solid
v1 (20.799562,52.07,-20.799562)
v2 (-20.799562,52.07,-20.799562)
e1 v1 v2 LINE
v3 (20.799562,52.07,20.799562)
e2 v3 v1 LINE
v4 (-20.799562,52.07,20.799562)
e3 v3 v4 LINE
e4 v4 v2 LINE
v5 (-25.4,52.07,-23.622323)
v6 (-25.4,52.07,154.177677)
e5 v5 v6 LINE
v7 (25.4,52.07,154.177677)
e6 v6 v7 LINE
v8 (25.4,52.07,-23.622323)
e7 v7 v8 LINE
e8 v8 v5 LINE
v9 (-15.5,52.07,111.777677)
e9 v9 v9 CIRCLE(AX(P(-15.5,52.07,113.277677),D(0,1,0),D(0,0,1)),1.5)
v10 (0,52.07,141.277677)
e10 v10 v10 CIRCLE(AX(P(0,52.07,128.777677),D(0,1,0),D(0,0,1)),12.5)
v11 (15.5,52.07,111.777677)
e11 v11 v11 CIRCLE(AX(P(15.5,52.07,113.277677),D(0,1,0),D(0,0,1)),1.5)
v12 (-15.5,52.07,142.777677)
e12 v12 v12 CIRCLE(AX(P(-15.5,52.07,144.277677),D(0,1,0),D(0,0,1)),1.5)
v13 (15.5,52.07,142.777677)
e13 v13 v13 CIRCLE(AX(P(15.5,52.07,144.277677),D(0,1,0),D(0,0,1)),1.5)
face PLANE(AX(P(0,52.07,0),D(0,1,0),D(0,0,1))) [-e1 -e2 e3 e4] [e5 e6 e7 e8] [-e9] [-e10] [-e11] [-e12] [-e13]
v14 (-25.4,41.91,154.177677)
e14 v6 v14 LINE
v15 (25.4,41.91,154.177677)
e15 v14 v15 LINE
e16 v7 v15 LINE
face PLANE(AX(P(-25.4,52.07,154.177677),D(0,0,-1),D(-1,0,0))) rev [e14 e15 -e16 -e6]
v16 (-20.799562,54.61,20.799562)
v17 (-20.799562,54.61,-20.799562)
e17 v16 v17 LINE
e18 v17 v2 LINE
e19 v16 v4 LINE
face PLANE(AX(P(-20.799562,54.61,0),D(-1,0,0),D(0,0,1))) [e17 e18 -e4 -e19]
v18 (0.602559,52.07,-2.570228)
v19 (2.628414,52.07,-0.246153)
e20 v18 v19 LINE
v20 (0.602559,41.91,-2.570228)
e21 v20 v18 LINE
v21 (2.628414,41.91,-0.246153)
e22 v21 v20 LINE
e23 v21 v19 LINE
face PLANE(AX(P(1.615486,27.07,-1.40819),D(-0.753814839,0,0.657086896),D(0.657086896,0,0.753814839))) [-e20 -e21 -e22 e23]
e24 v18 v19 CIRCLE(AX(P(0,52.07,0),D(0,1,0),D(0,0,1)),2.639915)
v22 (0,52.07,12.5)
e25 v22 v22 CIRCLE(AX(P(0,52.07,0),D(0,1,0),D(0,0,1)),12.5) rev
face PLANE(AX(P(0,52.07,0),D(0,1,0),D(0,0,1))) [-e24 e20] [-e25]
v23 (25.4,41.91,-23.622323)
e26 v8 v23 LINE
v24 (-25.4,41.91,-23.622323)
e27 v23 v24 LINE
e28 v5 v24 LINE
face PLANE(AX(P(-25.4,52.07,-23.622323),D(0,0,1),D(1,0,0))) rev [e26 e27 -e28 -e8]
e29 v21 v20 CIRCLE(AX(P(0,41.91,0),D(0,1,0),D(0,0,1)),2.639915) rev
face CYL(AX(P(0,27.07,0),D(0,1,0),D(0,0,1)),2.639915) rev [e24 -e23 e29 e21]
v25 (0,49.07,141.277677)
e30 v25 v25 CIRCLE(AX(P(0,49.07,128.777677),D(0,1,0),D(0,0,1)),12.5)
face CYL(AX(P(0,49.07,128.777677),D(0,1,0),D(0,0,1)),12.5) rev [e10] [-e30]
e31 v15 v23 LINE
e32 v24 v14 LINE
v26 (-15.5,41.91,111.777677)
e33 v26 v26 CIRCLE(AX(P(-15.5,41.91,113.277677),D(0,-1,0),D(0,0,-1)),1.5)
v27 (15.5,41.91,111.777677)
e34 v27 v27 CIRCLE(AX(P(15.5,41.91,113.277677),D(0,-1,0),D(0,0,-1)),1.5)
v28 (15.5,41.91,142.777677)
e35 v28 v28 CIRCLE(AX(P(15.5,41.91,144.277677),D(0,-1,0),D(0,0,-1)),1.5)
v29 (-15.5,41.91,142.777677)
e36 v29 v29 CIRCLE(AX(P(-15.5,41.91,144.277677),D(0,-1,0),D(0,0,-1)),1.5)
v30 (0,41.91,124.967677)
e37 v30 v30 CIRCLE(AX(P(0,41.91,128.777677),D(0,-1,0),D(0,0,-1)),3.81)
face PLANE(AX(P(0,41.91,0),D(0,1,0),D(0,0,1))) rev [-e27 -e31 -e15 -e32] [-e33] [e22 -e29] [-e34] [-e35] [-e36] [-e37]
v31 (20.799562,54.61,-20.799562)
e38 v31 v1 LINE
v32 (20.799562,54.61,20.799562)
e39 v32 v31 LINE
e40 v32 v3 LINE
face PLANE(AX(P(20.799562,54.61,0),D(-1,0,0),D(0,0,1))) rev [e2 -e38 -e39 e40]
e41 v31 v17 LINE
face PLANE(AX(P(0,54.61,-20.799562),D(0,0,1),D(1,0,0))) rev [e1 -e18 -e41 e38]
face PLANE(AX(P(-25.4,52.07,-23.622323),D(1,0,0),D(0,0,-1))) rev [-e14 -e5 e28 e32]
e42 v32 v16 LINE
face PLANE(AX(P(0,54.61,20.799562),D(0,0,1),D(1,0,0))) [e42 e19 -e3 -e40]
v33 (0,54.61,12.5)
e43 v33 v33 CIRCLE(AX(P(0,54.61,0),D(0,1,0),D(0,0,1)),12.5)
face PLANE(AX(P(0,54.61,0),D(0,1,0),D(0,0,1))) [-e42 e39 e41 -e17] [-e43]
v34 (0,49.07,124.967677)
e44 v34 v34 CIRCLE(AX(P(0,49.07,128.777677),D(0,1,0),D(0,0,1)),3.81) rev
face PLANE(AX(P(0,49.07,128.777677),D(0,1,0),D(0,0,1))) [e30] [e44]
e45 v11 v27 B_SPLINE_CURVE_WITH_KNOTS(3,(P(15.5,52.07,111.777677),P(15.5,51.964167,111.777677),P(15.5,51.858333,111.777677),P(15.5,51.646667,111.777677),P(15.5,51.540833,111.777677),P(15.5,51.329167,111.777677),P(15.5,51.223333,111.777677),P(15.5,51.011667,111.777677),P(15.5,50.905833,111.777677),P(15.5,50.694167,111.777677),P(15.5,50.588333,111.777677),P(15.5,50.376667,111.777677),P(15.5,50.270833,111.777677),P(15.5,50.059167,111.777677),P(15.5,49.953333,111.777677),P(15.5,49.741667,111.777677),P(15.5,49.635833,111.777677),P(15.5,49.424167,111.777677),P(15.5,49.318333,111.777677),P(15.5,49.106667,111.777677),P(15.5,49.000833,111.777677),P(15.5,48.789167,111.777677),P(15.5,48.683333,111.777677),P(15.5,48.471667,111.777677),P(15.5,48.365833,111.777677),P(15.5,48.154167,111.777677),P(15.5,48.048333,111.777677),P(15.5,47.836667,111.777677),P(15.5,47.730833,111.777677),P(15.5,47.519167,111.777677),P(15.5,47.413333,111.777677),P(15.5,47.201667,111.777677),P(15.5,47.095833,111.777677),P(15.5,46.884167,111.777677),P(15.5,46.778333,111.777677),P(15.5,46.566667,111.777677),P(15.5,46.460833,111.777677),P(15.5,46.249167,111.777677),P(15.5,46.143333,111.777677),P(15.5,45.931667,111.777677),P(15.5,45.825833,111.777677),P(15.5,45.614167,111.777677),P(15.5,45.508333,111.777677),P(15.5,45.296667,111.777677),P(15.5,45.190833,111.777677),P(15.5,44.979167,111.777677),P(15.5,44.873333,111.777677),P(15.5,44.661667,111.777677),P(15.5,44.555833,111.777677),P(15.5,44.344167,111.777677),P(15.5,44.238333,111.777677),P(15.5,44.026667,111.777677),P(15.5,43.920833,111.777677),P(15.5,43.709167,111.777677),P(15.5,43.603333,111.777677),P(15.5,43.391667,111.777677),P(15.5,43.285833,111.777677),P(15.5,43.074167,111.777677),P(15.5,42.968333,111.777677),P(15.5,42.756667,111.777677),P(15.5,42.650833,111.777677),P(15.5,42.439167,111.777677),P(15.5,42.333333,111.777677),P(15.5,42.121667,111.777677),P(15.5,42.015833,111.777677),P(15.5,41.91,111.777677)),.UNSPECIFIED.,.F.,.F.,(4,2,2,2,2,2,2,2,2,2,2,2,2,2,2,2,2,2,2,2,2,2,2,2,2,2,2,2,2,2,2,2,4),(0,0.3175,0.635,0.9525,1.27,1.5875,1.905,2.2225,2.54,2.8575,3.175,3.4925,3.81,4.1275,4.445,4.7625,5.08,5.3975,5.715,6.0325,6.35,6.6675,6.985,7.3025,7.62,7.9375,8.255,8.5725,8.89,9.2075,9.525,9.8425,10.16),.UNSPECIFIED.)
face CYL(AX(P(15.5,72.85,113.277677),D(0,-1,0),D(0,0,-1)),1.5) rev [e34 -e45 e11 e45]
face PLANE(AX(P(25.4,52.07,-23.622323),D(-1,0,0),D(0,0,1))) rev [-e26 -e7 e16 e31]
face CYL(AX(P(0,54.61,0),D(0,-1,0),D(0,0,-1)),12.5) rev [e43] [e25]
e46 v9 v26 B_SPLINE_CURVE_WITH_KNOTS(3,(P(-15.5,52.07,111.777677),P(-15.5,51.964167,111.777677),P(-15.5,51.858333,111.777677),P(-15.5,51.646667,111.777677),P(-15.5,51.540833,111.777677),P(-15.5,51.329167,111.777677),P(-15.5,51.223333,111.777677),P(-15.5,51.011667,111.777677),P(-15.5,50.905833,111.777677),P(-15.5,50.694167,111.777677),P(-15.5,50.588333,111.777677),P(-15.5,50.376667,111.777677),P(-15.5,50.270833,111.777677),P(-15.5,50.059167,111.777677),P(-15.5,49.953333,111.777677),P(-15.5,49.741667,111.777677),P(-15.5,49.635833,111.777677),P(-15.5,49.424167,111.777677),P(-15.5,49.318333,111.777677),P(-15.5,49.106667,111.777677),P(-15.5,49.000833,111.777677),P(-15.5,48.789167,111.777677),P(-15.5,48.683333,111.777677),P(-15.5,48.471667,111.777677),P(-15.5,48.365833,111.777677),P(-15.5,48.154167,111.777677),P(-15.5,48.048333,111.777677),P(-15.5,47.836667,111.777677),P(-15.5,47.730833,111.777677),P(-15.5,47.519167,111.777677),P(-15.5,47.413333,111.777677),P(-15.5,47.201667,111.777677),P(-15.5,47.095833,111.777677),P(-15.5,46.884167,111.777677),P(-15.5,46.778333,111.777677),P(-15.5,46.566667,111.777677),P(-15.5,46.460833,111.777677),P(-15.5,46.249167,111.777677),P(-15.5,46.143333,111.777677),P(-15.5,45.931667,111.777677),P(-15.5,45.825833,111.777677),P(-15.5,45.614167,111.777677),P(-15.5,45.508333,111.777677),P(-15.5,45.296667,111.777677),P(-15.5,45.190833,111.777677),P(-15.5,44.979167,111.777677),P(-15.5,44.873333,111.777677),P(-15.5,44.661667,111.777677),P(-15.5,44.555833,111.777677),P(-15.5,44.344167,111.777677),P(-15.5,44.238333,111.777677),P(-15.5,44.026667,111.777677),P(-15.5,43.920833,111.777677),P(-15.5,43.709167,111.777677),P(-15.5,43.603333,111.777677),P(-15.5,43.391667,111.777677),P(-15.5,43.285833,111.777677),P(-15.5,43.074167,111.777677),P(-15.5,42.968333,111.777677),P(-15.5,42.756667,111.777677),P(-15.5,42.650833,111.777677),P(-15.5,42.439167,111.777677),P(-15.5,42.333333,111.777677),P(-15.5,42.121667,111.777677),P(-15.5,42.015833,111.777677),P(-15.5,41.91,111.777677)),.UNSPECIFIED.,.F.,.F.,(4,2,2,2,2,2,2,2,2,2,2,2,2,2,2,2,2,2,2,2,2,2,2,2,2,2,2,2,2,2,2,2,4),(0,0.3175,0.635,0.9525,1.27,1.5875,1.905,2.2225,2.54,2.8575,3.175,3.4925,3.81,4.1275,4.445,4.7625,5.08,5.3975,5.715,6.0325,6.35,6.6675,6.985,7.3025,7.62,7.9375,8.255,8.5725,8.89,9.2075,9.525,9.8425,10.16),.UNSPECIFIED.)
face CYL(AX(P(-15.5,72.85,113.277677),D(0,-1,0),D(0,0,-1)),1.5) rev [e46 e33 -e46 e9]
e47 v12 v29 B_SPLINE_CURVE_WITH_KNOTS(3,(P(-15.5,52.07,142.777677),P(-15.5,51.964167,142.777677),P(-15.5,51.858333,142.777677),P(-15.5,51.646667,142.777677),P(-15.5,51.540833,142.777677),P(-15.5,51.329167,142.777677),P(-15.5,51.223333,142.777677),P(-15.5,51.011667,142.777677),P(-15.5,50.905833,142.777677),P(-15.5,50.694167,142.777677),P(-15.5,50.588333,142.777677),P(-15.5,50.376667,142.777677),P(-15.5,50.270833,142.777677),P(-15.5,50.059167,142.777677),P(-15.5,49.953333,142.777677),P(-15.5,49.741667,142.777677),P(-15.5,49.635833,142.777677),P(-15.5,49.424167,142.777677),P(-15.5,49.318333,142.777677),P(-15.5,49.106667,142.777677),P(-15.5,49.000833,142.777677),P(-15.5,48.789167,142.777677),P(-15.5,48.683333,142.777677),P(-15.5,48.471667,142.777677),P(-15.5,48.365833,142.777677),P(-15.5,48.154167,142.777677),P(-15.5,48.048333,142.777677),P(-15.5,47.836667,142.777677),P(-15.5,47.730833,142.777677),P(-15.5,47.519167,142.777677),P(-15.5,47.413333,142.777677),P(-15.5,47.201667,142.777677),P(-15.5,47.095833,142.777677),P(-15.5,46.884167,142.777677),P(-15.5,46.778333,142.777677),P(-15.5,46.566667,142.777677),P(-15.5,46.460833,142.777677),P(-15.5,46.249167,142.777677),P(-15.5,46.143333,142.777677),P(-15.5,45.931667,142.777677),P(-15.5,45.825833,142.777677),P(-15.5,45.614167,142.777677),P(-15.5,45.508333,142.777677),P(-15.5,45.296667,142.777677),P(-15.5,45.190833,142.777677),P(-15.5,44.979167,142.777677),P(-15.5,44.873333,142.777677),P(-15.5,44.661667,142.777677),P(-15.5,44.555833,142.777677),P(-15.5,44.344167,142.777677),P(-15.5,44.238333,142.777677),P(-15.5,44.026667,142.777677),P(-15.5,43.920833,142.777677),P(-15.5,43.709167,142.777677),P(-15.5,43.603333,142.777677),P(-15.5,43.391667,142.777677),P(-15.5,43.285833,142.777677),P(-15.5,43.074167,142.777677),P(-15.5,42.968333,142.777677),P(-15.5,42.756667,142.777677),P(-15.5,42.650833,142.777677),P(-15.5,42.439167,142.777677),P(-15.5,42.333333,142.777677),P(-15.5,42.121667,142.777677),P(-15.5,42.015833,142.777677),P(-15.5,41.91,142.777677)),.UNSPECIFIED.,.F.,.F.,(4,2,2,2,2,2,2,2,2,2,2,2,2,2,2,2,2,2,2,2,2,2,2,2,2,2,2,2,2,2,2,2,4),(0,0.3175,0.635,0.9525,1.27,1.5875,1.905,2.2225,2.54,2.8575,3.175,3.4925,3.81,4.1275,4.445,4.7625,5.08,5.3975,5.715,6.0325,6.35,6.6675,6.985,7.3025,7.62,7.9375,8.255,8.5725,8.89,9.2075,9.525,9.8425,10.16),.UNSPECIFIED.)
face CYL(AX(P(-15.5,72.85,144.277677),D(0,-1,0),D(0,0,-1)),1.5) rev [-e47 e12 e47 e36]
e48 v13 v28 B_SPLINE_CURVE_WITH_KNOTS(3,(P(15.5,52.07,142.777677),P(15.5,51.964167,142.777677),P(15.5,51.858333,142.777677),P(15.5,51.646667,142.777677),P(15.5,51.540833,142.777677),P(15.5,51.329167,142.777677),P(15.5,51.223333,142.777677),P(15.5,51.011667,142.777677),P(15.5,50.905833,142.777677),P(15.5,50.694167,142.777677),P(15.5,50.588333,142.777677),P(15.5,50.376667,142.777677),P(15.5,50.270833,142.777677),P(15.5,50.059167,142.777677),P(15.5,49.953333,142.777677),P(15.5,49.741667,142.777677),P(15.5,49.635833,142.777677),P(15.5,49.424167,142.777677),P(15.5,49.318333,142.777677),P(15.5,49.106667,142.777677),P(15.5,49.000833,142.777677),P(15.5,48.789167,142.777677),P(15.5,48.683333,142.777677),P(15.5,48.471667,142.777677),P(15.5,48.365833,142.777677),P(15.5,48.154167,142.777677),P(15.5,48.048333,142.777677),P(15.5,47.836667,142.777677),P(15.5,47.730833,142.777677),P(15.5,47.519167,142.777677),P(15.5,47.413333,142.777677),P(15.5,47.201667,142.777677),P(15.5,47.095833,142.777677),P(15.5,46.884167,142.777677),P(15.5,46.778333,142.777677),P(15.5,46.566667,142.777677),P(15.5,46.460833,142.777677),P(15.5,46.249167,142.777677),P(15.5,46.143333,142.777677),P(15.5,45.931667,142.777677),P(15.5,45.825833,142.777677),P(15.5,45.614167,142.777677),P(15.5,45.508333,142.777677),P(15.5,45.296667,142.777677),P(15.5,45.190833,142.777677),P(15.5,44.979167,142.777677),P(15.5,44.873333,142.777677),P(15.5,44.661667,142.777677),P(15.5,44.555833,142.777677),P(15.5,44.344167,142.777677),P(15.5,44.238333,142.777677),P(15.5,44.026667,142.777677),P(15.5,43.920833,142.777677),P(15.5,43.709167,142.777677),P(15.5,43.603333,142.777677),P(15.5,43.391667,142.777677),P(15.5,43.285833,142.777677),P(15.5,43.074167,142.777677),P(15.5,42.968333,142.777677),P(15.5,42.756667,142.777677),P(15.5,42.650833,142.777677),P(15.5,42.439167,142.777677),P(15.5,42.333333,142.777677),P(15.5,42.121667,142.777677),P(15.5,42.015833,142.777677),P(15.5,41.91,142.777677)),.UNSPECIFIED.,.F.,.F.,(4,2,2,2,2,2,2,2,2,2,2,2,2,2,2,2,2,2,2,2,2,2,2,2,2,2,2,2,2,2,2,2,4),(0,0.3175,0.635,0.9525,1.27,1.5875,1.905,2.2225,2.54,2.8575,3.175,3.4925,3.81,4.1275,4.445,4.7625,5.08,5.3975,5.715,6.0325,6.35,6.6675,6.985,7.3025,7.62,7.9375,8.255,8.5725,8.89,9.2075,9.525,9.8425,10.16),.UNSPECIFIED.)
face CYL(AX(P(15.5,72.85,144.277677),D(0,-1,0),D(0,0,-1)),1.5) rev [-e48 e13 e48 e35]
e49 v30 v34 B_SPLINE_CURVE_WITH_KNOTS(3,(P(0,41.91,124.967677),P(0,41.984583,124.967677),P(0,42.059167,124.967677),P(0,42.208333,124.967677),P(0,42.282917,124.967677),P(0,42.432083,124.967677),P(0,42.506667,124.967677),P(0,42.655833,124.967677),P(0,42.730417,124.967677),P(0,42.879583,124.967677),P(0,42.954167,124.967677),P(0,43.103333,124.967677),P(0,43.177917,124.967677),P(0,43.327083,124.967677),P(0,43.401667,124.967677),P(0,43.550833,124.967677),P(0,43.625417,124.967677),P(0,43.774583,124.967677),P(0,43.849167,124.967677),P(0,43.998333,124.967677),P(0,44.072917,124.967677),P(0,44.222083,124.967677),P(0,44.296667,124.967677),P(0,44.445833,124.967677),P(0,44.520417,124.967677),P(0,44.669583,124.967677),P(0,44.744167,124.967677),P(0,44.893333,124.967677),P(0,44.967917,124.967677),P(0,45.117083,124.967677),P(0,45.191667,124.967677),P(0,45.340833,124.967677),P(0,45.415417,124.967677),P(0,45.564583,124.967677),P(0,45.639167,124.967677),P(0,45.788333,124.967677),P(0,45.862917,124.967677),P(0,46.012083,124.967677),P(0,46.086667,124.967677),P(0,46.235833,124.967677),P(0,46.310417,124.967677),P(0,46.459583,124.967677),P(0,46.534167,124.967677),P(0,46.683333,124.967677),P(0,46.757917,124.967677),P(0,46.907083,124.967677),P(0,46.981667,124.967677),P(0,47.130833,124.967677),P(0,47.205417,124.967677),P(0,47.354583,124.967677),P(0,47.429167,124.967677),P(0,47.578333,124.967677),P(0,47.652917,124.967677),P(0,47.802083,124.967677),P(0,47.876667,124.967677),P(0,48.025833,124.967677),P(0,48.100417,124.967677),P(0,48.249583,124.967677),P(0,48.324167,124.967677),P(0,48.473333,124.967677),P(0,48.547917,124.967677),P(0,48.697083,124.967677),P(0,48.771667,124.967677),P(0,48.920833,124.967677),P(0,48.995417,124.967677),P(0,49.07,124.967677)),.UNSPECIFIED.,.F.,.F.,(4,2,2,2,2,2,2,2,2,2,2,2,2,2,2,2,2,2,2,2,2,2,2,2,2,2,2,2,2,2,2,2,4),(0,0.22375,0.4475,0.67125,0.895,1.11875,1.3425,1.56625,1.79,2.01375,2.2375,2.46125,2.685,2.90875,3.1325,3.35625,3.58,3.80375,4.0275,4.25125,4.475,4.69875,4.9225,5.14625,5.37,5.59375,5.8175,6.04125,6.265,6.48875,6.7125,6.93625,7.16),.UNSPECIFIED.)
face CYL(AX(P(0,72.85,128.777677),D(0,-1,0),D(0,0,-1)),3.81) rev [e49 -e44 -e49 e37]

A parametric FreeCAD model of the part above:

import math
import FreeCAD as App
import Part
import Sketcher
Q = App.Units.Quantity


def add_polygon(sketch, points):
    """Adds a closed chain of lines whose ends are joined by coincident constraints."""
    first, n = sketch.GeometryCount, len(points)
    for a, b in zip(points, points[1:] + points[:1]):
        sketch.addGeometry(Part.LineSegment(App.Vector(*a, 0), App.Vector(*b, 0)), False)
    for i in range(n):
        sketch.addConstraint(Sketcher.Constraint("Coincident", first + i, 2, first + (i + 1) % n, 1))

doc = App.newDocument("Part")
params = doc.addObject("Spreadsheet::Sheet", "Params")
for row, (alias, value) in enumerate([
    ("sketch1_diameter", "0.4 in"),
    ("pad1_length", "1.65 in"),
    ("sketch2_width", "2 in"),
    ("sketch2_height", "7 in"),
    ("pad2_length", "0.4 in"),
    ("pad3_length", "0.1 in"),
    ("pocket1_length", "25 mm"),
    ("sketch5_diameter", "0.3 in"),
    ("pocket2_length", "30.94 mm"),
    ("pocket3_length", "3 mm"),
    ("pocket4_length", "85.804 mm"),
], start=1):
    params.set(f"A{row}", alias)
    params.set(f"B{row}", "=" + value)
    params.setAlias(f"B{row}", alias)

body = doc.addObject("PartDesign::Body", "Body")

# Sketch on XZ plane
sketch1 = body.newObject("Sketcher::SketchObject", "Sketch")
sketch1.AttachmentSupport = (doc.getObject("XZ_Plane"), [""])
sketch1.MapMode = "FlatFace"
sketch1.addGeometry(Part.Circle(App.Vector(0, 0, 0), App.Vector(0, 0, 1), 5), False)
sketch1.addConstraint([
    Sketcher.Constraint("Coincident", 0, 3, -1, 1),
    Sketcher.Constraint("Diameter", 0, Q("0.4 in")),
])
sketch1.setExpression("Constraints[1]", "Params.sketch1_diameter")
pad1 = body.newObject("PartDesign::Pad", "Pad")
pad1.Profile = sketch1
pad1.setExpression("Length", "Params.pad1_length")
pad1.Reversed = True

# Sketch on XZ plane
sketch2 = body.newObject("Sketcher::SketchObject", "Sketch001")
sketch2.AttachmentSupport = (doc.getObject("XZ_Plane"), [""])
sketch2.MapMode = "FlatFace"
sketch2.AttachmentOffset = App.Placement(App.Vector(0, 0, -1.65 * 25.4), App.Rotation())
add_polygon(sketch2, [(-25, -24), (-25, 154), (25, 154), (25, -24)])  # lines 0-3
sketch2.addConstraint([
    Sketcher.Constraint("Vertical", 0),
    Sketcher.Constraint("Horizontal", 1),
    Sketcher.Constraint("Vertical", 2),
    Sketcher.Constraint("Horizontal", 3),
    Sketcher.Constraint("DistanceX", 1, 1, 1, 2, Q("2 in")),
    Sketcher.Constraint("DistanceY", 0, 1, 0, 2, Q("7 in")),
    Sketcher.Constraint("DistanceX", 0, 2, -1, 1, Q("1 in")),
    Sketcher.Constraint("DistanceY", -1, 1, 0, 2, Q("154.177677 mm")),
])
sketch2.setExpression("Constraints[8]", "Params.sketch2_width")
sketch2.setExpression("Constraints[9]", "Params.sketch2_height")
pad2 = body.newObject("PartDesign::Pad", "Pad001")
pad2.Profile = sketch2
pad2.setExpression("Length", "Params.pad2_length")
pad2.Reversed = True

# Sketch on XZ plane
sketch3 = body.newObject("Sketcher::SketchObject", "Sketch002")
sketch3.AttachmentSupport = (doc.getObject("XZ_Plane"), [""])
sketch3.MapMode = "FlatFace"
sketch3.AttachmentOffset = App.Placement(App.Vector(0, 0, -2.05 * 25.4), App.Rotation())
add_polygon(sketch3, [(-21, -21), (-21, 21), (21, 21), (21, -21)])  # lines 0-3
sketch3.addGeometry(Part.Circle(App.Vector(0, 0, 0), App.Vector(0, 0, 1), 12), False)  # 4
sketch3.addConstraint([
    Sketcher.Constraint("Vertical", 0),
    Sketcher.Constraint("Horizontal", 1),
    Sketcher.Constraint("Vertical", 2),
    Sketcher.Constraint("Horizontal", 3),
    Sketcher.Constraint("Coincident", 4, 3, -1, 1),
    Sketcher.Constraint("Symmetric", 0, 2, 2, 2, -1, 1),
    Sketcher.Constraint("Equal", 3, 0),
    Sketcher.Constraint("Diameter", 4, Q("25 mm")),
    Sketcher.Constraint("DistanceX", 1, 1, 1, 2, Q("41.599125 mm")),
])
pad3 = body.newObject("PartDesign::Pad", "Pad002")
pad3.Profile = sketch3
pad3.setExpression("Length", "Params.pad3_length")
pad3.Reversed = True

# Sketch on XZ plane
sketch4 = body.newObject("Sketcher::SketchObject", "Sketch003")
sketch4.AttachmentSupport = (doc.getObject("XZ_Plane"), [""])
sketch4.MapMode = "FlatFace"
sketch4.AttachmentOffset = App.Placement(App.Vector(0, 0, -2.05 * 25.4), App.Rotation())
sketch4.addGeometry([
    Part.LineSegment(App.Vector(2.63, -0.25, 0), App.Vector(0.6, -2.57, 0)),
    Part.ArcOfCircle(Part.Circle(App.Vector(0, 0, 0), App.Vector(0, 0, 1), 2.64), math.radians(0), math.radians(283)),
    Part.ArcOfCircle(Part.Circle(App.Vector(0, 0, 0), App.Vector(0, 0, 1), 2.64), math.radians(-5.35), math.radians(0)),
], False)
sketch4.addConstraint([
    Sketcher.Constraint("Coincident", 0, 2, 1, 2),
    Sketcher.Constraint("Tangent", 1, 1, 2, 2),
    Sketcher.Constraint("Coincident", 2, 1, 0, 1),
    Sketcher.Constraint("Coincident", 1, 3, -1, 1),
    Sketcher.Constraint("Equal", 1, 2),
    Sketcher.Constraint("PointOnObject", 1, 1, -1),
    Sketcher.Constraint("Radius", 1, Q("2.639915 mm")),
    Sketcher.Constraint("DistanceX", 2, 1, 1, 1, Q("0.011501 mm")),
    Sketcher.Constraint("DistanceX", -1, 1, 0, 2, Q("0.602559 mm")),
])
pocket1 = body.newObject("PartDesign::Pocket", "Pocket")
pocket1.Profile = sketch4
pocket1.setExpression("Length", "Params.pocket1_length")
pocket1.Reversed = True

# Sketch on XZ plane
sketch5 = body.newObject("Sketcher::SketchObject", "Sketch004")
sketch5.AttachmentSupport = (doc.getObject("XZ_Plane"), [""])
sketch5.MapMode = "FlatFace"
sketch5.AttachmentOffset = App.Placement(App.Vector(0, 0, -1.65 * 25.4), App.Rotation())
sketch5.addGeometry([
    Part.Circle(App.Vector(15.5, 144.3, 0), App.Vector(0, 0, 1), 1.5),  # 0
    Part.Circle(App.Vector(0, 128.8, 0), App.Vector(0, 0, 1), 3.8),  # 1
    Part.Circle(App.Vector(-15.5, 113.3, 0), App.Vector(0, 0, 1), 1.5),  # 2
    Part.Circle(App.Vector(15.5, 113.3, 0), App.Vector(0, 0, 1), 1.5),  # 3
    Part.Circle(App.Vector(-15.5, 144.3, 0), App.Vector(0, 0, 1), 1.5),  # 4
], False)
sketch5.addConstraint([
    Sketcher.Constraint("Equal", 0, 2),
    Sketcher.Constraint("Equal", 2, 3),
    Sketcher.Constraint("Equal", 3, 4),
    Sketcher.Constraint("Symmetric", 2, 3, 3, 3, -2),
    Sketcher.Constraint("Symmetric", 0, 3, 4, 3, -2),
    Sketcher.Constraint("PointOnObject", 1, 3, -2),
    Sketcher.Constraint("Vertical", 0, 3, 3, 3),
    Sketcher.Constraint("Diameter", 1, Q("0.3 in")),
    Sketcher.Constraint("Diameter", 0, Q("3 mm")),
    Sketcher.Constraint("DistanceX", -1, 1, 0, 3, Q("15.5 mm")),
    Sketcher.Constraint("DistanceY", 1, 3, 0, 3, Q("15.5 mm")),
    Sketcher.Constraint("DistanceY", 2, 3, 1, 3, Q("15.5 mm")),
    Sketcher.Constraint("DistanceY", -1, 1, 0, 3, Q("144.277677 mm")),
])
sketch5.setExpression("Constraints[7]", "Params.sketch5_diameter")
pocket2 = body.newObject("PartDesign::Pocket", "Pocket001")
pocket2.Profile = sketch5
pocket2.setExpression("Length", "Params.pocket2_length")

# Sketch on XZ plane
sketch6 = body.newObject("Sketcher::SketchObject", "Sketch005")
sketch6.AttachmentSupport = (doc.getObject("XZ_Plane"), [""])
sketch6.MapMode = "FlatFace"
sketch6.AttachmentOffset = App.Placement(App.Vector(0, 0, -2.05 * 25.4), App.Rotation())
sketch6.addGeometry(Part.Circle(App.Vector(0, 129, 0), App.Vector(0, 0, 1), 12), False)
sketch6.addConstraint([
    Sketcher.Constraint("PointOnObject", 0, 3, -2),
    Sketcher.Constraint("Diameter", 0, Q("25 mm")),
    Sketcher.Constraint("DistanceY", -1, 1, 0, 3, Q("128.777677 mm")),
])
pocket3 = body.newObject("PartDesign::Pocket", "Pocket002")
pocket3.Profile = sketch6
pocket3.setExpression("Length", "Params.pocket3_length")
pocket3.Reversed = True

# Sketch on YZ plane
sketch7 = body.newObject("Sketcher::SketchObject", "Sketch006")
sketch7.AttachmentSupport = (doc.getObject("YZ_Plane"), [""])
sketch7.MapMode = "FlatFace"
sketch7.AttachmentOffset = App.Placement(App.Vector(0, 0, -1 * 25.4), App.Rotation())
add_polygon(sketch7, [(42, -22), (-5, -22), (-5, 20), (42, 20)])  # lines 0-3
sketch7.addConstraint([
    Sketcher.Constraint("Horizontal", 0),
    Sketcher.Constraint("Vertical", 1),
    Sketcher.Constraint("Horizontal", 2),
    Sketcher.Constraint("Vertical", 3),
    Sketcher.Constraint("DistanceX", -1, 1, 2, 2, Q("1.65 in")),
    Sketcher.Constraint("DistanceX", 0, 2, 0, 1, Q("46.988261 mm")),
    Sketcher.Constraint("DistanceY", 1, 1, 1, 2, Q("42.604526 mm")),
    Sketcher.Constraint("DistanceY", -1, 1, 1, 2, Q("20.189479 mm")),
])
pocket4 = body.newObject("PartDesign::Pocket", "Pocket003")
pocket4.Profile = sketch7
pocket4.setExpression("Length", "Params.pocket4_length")
pocket4.Reversed = True

doc.recompute()
